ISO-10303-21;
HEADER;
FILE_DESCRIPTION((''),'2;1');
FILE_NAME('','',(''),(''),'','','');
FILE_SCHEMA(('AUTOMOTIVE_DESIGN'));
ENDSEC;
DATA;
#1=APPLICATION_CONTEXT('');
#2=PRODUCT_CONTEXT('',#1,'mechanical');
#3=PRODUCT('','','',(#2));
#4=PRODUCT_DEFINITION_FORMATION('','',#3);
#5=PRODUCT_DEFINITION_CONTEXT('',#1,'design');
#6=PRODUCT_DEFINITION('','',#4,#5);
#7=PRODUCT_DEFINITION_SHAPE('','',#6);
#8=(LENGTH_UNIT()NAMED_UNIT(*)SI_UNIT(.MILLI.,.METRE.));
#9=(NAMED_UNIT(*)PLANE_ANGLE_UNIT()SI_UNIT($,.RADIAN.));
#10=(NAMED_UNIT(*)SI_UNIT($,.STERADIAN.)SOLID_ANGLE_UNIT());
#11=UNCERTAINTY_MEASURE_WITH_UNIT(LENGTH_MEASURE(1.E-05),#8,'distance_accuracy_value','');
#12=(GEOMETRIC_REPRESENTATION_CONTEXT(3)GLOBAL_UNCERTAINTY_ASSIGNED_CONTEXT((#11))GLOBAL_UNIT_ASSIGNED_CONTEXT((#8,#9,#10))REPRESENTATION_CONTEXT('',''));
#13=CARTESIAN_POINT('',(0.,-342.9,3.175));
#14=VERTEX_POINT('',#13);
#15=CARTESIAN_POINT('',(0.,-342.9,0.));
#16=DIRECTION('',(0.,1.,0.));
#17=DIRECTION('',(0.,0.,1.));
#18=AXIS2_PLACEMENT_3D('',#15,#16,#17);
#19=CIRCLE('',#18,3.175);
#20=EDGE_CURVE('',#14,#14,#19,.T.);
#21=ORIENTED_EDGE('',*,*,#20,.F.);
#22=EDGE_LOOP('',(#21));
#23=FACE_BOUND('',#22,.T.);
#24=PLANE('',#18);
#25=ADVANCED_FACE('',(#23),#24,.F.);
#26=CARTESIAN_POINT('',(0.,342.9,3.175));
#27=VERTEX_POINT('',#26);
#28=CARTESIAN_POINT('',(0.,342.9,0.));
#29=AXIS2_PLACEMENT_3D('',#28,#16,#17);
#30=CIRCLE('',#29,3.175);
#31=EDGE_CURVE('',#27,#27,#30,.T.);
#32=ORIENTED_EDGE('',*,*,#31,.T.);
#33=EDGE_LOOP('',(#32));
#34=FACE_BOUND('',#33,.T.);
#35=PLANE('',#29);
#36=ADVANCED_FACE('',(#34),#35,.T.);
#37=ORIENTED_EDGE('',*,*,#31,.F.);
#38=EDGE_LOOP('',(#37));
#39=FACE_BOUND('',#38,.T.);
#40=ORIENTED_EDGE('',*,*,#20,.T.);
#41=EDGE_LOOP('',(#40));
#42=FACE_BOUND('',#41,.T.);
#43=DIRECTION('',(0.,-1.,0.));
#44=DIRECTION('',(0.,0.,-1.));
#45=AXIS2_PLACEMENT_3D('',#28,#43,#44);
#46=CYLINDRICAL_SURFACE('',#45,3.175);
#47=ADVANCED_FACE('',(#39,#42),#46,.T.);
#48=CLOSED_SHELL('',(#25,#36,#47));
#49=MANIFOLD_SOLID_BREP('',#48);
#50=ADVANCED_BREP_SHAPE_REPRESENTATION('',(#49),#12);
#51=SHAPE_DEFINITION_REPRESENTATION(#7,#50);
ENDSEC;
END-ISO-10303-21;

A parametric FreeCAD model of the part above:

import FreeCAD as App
import Part
import Sketcher
from FreeCAD import Vector
Q = App.Units.Quantity

doc = App.newDocument("Part")
params = doc.addObject("Spreadsheet::Sheet", "Params")
for row, (alias, value) in enumerate([
    ("sketch1_diameter", "0.25 in"),
    ("pad1_length", "27 in"),
], start=1):
    params.set(f"A{row}", alias)
    params.set(f"B{row}", "=" + value)
    params.setAlias(f"B{row}", alias)

body = doc.addObject("PartDesign::Body", "Body")

sketch1 = body.newObject("Sketcher::SketchObject", "Sketch")
sketch1.AttachmentSupport = (doc.getObject("XZ_Plane"), [""])
sketch1.MapMode = "FlatFace"
sketch1.addGeometry(Part.Circle(Vector(0, 0, 0), Vector(0, 0, 1), 3.2), False)
sketch1.addConstraint([
    Sketcher.Constraint("Coincident", 0, 3, -1, 1),
    Sketcher.Constraint("Diameter", 0, Q("0.25 in")),
])
sketch1.setExpression("Constraints[1]", "Params.sketch1_diameter")
pad1 = body.newObject("PartDesign::Pad", "Pad")
pad1.Profile = sketch1
pad1.setExpression("Length", "Params.pad1_length")
pad1.Midplane = True

doc.recompute()
